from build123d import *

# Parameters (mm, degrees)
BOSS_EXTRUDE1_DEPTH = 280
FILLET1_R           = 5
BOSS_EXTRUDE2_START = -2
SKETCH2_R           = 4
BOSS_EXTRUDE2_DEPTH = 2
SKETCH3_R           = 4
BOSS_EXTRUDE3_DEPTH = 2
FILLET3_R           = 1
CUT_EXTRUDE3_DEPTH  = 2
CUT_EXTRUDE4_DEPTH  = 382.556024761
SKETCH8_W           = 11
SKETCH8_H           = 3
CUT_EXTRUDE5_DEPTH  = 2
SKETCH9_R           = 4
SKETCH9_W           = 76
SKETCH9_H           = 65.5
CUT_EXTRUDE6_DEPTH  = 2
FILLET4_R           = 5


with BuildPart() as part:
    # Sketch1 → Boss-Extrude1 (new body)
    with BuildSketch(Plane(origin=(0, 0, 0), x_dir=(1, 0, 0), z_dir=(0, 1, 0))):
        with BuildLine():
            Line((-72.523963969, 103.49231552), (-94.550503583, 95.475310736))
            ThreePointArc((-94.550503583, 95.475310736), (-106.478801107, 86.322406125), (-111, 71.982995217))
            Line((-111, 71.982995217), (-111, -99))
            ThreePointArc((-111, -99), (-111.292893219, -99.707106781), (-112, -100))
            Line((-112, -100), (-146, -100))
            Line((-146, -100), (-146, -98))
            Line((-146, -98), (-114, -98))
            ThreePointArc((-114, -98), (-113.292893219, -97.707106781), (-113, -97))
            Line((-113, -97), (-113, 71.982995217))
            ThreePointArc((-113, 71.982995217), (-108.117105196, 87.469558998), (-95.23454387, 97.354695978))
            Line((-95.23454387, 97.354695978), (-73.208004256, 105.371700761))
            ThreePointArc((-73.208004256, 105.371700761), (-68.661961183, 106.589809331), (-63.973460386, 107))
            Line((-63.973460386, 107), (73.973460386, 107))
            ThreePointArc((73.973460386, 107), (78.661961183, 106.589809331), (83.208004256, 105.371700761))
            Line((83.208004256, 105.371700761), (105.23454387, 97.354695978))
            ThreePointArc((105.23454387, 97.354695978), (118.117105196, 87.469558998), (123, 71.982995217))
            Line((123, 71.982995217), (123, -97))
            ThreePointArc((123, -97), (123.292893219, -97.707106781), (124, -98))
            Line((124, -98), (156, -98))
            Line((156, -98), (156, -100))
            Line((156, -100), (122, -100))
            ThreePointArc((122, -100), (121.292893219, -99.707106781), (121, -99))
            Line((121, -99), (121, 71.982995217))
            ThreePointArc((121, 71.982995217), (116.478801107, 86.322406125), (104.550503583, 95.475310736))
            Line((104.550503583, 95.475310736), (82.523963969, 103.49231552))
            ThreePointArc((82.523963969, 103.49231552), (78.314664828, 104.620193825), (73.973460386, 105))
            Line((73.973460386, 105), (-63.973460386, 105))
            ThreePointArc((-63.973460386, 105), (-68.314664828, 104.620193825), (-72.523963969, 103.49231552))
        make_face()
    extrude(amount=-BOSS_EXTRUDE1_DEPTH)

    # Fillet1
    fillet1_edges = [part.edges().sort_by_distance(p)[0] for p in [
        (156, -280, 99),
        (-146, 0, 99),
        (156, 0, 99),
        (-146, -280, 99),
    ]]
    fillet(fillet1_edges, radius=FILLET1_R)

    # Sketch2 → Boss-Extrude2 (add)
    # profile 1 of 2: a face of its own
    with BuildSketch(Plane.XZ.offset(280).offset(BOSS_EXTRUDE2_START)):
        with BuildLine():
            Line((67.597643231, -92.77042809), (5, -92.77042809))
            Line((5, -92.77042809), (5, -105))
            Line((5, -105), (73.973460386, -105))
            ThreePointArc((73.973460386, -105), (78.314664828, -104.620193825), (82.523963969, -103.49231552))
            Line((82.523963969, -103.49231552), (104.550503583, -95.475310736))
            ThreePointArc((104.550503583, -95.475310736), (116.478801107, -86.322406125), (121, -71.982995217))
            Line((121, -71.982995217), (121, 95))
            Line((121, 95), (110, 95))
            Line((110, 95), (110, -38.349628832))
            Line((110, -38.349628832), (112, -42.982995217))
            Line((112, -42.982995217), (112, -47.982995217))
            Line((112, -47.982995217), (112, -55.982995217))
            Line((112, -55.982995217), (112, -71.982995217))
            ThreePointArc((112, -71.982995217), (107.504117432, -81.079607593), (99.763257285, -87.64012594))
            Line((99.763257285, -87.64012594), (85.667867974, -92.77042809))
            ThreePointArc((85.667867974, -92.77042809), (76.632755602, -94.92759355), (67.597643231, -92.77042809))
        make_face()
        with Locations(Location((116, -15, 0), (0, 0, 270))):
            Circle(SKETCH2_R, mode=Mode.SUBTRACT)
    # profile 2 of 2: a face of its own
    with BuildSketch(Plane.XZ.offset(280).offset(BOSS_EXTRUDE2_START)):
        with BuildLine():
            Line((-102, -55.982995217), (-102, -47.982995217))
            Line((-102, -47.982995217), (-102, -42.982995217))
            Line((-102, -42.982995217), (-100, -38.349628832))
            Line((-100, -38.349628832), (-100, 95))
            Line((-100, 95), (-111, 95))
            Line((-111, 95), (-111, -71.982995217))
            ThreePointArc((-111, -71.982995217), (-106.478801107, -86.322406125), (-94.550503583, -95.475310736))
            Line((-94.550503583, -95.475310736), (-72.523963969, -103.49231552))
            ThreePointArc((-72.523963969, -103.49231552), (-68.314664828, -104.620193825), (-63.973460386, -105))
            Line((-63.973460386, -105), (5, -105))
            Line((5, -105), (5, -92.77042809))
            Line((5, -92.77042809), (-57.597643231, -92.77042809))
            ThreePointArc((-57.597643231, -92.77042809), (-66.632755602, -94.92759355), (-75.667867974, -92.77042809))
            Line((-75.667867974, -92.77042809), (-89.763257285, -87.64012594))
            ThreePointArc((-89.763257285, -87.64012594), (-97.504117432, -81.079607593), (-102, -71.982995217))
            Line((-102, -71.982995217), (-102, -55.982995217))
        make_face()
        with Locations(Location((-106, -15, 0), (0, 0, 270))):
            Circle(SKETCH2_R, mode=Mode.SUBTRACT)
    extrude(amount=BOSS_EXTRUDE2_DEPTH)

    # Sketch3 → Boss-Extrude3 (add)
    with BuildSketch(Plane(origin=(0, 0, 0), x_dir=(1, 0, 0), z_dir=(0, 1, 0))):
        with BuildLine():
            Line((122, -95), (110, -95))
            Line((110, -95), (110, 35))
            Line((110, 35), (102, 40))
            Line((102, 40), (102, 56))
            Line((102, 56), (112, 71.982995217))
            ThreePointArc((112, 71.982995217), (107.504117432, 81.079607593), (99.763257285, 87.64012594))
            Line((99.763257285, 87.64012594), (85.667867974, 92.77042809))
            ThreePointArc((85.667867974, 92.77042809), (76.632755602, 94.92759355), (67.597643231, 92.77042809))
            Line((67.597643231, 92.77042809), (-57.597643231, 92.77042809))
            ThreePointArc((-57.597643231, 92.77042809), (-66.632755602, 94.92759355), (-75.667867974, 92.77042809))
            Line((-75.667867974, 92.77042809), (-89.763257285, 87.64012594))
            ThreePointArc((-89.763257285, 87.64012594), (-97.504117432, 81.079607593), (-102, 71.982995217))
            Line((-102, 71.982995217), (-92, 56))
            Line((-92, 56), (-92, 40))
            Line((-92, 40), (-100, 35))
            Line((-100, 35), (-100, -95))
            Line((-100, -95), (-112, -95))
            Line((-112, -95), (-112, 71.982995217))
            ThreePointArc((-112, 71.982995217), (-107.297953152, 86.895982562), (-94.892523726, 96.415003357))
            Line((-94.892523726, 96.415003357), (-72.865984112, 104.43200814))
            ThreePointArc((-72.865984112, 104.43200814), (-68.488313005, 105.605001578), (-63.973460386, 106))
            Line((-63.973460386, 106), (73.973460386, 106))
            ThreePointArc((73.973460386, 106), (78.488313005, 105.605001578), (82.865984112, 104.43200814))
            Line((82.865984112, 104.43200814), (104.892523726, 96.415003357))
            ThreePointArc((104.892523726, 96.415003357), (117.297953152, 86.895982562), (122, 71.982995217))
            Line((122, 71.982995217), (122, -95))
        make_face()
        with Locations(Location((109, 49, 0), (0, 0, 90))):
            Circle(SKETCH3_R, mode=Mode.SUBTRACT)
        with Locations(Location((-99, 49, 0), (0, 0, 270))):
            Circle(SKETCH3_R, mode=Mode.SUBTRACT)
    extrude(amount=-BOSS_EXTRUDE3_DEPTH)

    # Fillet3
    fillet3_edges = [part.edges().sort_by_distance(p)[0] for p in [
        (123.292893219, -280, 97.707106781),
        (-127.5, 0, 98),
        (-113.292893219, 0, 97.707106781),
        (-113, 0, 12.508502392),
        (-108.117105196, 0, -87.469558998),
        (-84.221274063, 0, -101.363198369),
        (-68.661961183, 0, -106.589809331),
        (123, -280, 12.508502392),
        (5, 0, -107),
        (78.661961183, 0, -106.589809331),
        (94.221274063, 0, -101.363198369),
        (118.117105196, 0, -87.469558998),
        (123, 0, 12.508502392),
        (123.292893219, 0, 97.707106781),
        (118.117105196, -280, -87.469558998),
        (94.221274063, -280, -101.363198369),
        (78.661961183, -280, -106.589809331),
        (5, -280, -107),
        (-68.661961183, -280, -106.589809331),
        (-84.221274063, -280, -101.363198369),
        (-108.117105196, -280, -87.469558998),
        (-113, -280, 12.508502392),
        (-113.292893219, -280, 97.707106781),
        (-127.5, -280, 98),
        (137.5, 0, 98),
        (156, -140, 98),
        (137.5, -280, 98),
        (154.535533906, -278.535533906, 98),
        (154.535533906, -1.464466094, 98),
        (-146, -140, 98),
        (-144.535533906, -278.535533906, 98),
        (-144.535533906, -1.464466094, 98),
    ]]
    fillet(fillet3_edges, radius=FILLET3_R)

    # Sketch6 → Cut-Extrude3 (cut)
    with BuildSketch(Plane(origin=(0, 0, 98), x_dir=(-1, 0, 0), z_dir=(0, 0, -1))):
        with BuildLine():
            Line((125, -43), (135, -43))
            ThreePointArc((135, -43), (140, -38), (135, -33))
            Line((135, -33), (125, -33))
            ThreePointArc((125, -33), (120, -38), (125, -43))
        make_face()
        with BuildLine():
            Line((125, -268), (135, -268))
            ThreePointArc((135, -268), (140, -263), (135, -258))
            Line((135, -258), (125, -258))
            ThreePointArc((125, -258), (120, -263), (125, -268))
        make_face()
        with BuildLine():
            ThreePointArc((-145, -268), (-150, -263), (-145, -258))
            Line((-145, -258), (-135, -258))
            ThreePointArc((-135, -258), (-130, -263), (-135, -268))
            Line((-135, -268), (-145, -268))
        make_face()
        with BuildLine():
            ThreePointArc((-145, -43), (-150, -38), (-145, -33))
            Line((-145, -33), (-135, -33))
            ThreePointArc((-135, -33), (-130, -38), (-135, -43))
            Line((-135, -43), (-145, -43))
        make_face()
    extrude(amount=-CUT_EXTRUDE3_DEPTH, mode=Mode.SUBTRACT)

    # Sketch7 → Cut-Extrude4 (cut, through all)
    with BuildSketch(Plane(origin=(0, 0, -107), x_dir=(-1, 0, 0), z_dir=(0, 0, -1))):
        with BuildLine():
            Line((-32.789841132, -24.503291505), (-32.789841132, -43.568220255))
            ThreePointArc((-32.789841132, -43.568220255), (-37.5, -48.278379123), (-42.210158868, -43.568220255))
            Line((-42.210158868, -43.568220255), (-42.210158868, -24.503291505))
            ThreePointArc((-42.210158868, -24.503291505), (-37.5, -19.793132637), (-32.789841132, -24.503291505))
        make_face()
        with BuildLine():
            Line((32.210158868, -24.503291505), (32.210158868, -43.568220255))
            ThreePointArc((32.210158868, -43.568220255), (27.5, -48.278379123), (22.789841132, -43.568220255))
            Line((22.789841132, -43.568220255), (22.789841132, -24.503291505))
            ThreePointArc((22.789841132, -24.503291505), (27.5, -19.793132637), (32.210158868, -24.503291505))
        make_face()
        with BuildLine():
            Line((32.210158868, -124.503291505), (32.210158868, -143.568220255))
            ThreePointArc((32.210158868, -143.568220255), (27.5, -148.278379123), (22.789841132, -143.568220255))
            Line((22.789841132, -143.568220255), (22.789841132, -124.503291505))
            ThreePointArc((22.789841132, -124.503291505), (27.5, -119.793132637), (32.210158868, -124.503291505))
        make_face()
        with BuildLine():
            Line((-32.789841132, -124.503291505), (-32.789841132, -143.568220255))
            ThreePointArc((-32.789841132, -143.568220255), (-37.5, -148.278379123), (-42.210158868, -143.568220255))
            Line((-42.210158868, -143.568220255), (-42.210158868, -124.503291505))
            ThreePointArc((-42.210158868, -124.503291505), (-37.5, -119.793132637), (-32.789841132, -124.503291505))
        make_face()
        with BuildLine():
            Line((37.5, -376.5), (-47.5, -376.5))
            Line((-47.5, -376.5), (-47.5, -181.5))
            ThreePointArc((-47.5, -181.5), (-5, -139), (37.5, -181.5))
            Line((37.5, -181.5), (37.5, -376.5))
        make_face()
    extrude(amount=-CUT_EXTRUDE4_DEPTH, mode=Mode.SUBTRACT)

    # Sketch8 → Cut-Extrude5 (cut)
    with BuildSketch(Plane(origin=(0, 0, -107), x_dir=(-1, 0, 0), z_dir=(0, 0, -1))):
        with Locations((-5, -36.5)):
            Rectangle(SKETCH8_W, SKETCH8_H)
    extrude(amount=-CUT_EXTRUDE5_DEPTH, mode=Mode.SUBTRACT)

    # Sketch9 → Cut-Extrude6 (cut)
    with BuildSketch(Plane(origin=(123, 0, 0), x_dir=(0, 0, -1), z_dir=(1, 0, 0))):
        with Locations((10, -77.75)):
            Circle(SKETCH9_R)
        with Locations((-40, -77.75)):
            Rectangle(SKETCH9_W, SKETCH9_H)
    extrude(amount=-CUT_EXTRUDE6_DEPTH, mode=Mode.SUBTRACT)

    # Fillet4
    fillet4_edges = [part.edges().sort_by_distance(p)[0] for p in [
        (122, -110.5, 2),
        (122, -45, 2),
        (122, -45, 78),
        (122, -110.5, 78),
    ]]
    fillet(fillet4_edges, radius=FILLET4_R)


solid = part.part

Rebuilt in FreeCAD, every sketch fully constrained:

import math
import FreeCAD as App
import Part
import Sketcher
Q = App.Units.Quantity


def edges_at(feature, points):
    """Names of the edges that pass closest to the given points."""
    edges = feature.Shape.Edges
    near = lambda p: min(range(len(edges)), key=lambda i: edges[i].distToShape(Part.Vertex(*p))[0])
    return sorted({f"Edge{near(p) + 1}" for p in points})

doc = App.newDocument("Part")
body = doc.addObject("PartDesign::Body", "Body")

sketch1 = body.newObject("Sketcher::SketchObject", "Sketch")
sketch1.AttachmentSupport = (doc.getObject("XZ_Plane"), [""])
sketch1.MapMode = "FlatFace"
sketch1.addGeometry([
    Part.LineSegment(App.Vector(-94.550504, -95.475311, 0), App.Vector(-72.523964, -103.492316, 0)),
    Part.ArcOfCircle(Part.Circle(App.Vector(-63.97346, -80, 0), App.Vector(0, 0, 1), 25), math.radians(-110), math.radians(-90)),
    Part.LineSegment(App.Vector(-63.97346, -105, 0), App.Vector(73.97346, -105, 0)),
    Part.ArcOfCircle(Part.Circle(App.Vector(73.97346, -80, 0), App.Vector(0, 0, 1), 25), math.radians(-90), math.radians(-70)),
    Part.LineSegment(App.Vector(82.523964, -103.492316, 0), App.Vector(104.550504, -95.475311, 0)),
    Part.ArcOfCircle(Part.Circle(App.Vector(96, -71.982995, 0), App.Vector(0, 0, 1), 25), math.radians(-70), math.radians(0)),
    Part.LineSegment(App.Vector(121, -71.982995, 0), App.Vector(121, 99, 0)),
    Part.ArcOfCircle(Part.Circle(App.Vector(122, 99, 0), App.Vector(0, 0, 1), 1), math.radians(90), math.radians(180)),
    Part.LineSegment(App.Vector(122, 100, 0), App.Vector(156, 100, 0)),
    Part.LineSegment(App.Vector(156, 100, 0), App.Vector(156, 98, 0)),
    Part.LineSegment(App.Vector(156, 98, 0), App.Vector(124, 98, 0)),
    Part.ArcOfCircle(Part.Circle(App.Vector(124, 97, 0), App.Vector(0, 0, 1), 1), math.radians(90), math.radians(180)),
    Part.LineSegment(App.Vector(123, 97, 0), App.Vector(123, -71.982995, 0)),
    Part.ArcOfCircle(Part.Circle(App.Vector(96, -71.982995, 0), App.Vector(0, 0, 1), 27), math.radians(-70), math.radians(0)),
    Part.LineSegment(App.Vector(105.234544, -97.354696, 0), App.Vector(83.208004, -105.371701, 0)),
    Part.ArcOfCircle(Part.Circle(App.Vector(73.97346, -80, 0), App.Vector(0, 0, 1), 27), math.radians(-90), math.radians(-70)),
    Part.LineSegment(App.Vector(73.97346, -107, 0), App.Vector(-63.97346, -107, 0)),
    Part.ArcOfCircle(Part.Circle(App.Vector(-63.97346, -80, 0), App.Vector(0, 0, 1), 27), math.radians(-110), math.radians(-90)),
    Part.LineSegment(App.Vector(-73.208004, -105.371701, 0), App.Vector(-95.234544, -97.354696, 0)),
    Part.ArcOfCircle(Part.Circle(App.Vector(-86, -71.982995, 0), App.Vector(0, 0, 1), 27), math.radians(180), math.radians(250)),
    Part.LineSegment(App.Vector(-113, -71.982995, 0), App.Vector(-113, 97, 0)),
    Part.ArcOfCircle(Part.Circle(App.Vector(-114, 97, 0), App.Vector(0, 0, 1), 1), math.radians(0), math.radians(90)),
    Part.LineSegment(App.Vector(-114, 98, 0), App.Vector(-146, 98, 0)),
    Part.LineSegment(App.Vector(-146, 98, 0), App.Vector(-146, 100, 0)),
    Part.LineSegment(App.Vector(-146, 100, 0), App.Vector(-112, 100, 0)),
    Part.ArcOfCircle(Part.Circle(App.Vector(-112, 99, 0), App.Vector(0, 0, 1), 1), math.radians(0), math.radians(90)),
    Part.LineSegment(App.Vector(-111, 99, 0), App.Vector(-111, -71.982995, 0)),
    Part.ArcOfCircle(Part.Circle(App.Vector(-86, -71.982995, 0), App.Vector(0, 0, 1), 25), math.radians(-180), math.radians(-110)),
], False)
sketch1.addConstraint([
    Sketcher.Constraint("Tangent", 0, 2, 1, 1),
    Sketcher.Constraint("Tangent", 1, 2, 2, 1),
    Sketcher.Constraint("Tangent", 2, 2, 3, 1),
    Sketcher.Constraint("Tangent", 3, 2, 4, 1),
    Sketcher.Constraint("Tangent", 4, 2, 5, 1),
    Sketcher.Constraint("Tangent", 5, 2, 6, 1),
    Sketcher.Constraint("Tangent", 6, 2, 7, 2),
    Sketcher.Constraint("Tangent", 7, 1, 8, 1),
    Sketcher.Constraint("Coincident", 8, 2, 9, 1),
    Sketcher.Constraint("Coincident", 9, 2, 10, 1),
    Sketcher.Constraint("Tangent", 10, 2, 11, 1),
    Sketcher.Constraint("Tangent", 11, 2, 12, 1),
    Sketcher.Constraint("Tangent", 12, 2, 13, 2),
    Sketcher.Constraint("Tangent", 13, 1, 14, 1),
    Sketcher.Constraint("Tangent", 14, 2, 15, 2),
    Sketcher.Constraint("Tangent", 15, 1, 16, 1),
    Sketcher.Constraint("Tangent", 16, 2, 17, 2),
    Sketcher.Constraint("Tangent", 17, 1, 18, 1),
    Sketcher.Constraint("Tangent", 18, 2, 19, 2),
    Sketcher.Constraint("Tangent", 19, 1, 20, 1),
    Sketcher.Constraint("Tangent", 20, 2, 21, 1),
    Sketcher.Constraint("Tangent", 21, 2, 22, 1),
    Sketcher.Constraint("Coincident", 22, 2, 23, 1),
    Sketcher.Constraint("Coincident", 23, 2, 24, 1),
    Sketcher.Constraint("Tangent", 24, 2, 25, 2),
    Sketcher.Constraint("Tangent", 25, 1, 26, 1),
    Sketcher.Constraint("Tangent", 26, 2, 27, 1),
    Sketcher.Constraint("Tangent", 27, 2, 0, 1),
    Sketcher.Constraint("Horizontal", 2),
    Sketcher.Constraint("Vertical", 6),
    Sketcher.Constraint("Horizontal", 8),
    Sketcher.Constraint("Vertical", 9),
    Sketcher.Constraint("Horizontal", 10),
    Sketcher.Constraint("Vertical", 12),
    Sketcher.Constraint("Horizontal", 16),
    Sketcher.Constraint("Vertical", 20),
    Sketcher.Constraint("Horizontal", 22),
    Sketcher.Constraint("Vertical", 23),
    Sketcher.Constraint("Horizontal", 24),
    Sketcher.Constraint("Vertical", 26),
    Sketcher.Constraint("Coincident", 13, 3, 5, 3),
    Sketcher.Constraint("Coincident", 15, 3, 3, 3),
    Sketcher.Constraint("Coincident", 17, 3, 1, 3),
    Sketcher.Constraint("Coincident", 27, 3, 19, 3),
    Sketcher.Constraint("Equal", 1, 3),
    Sketcher.Constraint("Equal", 3, 5),
    Sketcher.Constraint("Equal", 7, 11),
    Sketcher.Constraint("Equal", 13, 15),
    Sketcher.Constraint("Equal", 17, 19),
    Sketcher.Constraint("Equal", 11, 21),
    Sketcher.Constraint("Equal", 21, 25),
    Sketcher.Constraint("Equal", 5, 27),
    Sketcher.Constraint("Horizontal", 13, 3, 19, 3),
    Sketcher.Constraint("Horizontal", 11, 3, 21, 3),
    Sketcher.Constraint("Horizontal", 7, 3, 25, 3),
    Sketcher.Constraint("Horizontal", 0, 2, 3, 2),
    Sketcher.Constraint("Equal", 10, 22),
    Sketcher.Constraint("Radius", 1, 25.0),
    Sketcher.Constraint("Radius", 7, 1.0),
    Sketcher.Constraint("Radius", 13, 27.0),
    Sketcher.Constraint("DistanceX", 8, 1, 8, 2, 34.0),
    Sketcher.Constraint("DistanceY", 9, 2, 9, 1, 2.0),
    Sketcher.Constraint("Angle", 0, Q("-20 deg")),
    Sketcher.Constraint("DistanceY", 1, 3, -1, 1, 80.0),
    Sketcher.Constraint("DistanceX", -1, 1, 5, 3, 96.0),
    Sketcher.Constraint("DistanceY", -1, 1, 7, 3, 99.0),
    Sketcher.Constraint("DistanceX", 19, 3, -1, 1, 86.0),
    Sketcher.Constraint("DistanceX", 2, 1, 2, 2, 137.946921),
])
pad1 = body.newObject("PartDesign::Pad", "Pad")
pad1.Profile = sketch1
pad1.Length = 280
doc.recompute()

fillet = body.newObject("PartDesign::Fillet", "Fillet")
fillet.Base = (pad1, edges_at(pad1, [
    (156, -280, 99),
    (-146, 0, 99),
    (156, 0, 99),
    (-146, -280, 99),
]))
fillet.Radius = 5

sketch2 = body.newObject("Sketcher::SketchObject", "Sketch001")
sketch2.AttachmentSupport = (doc.getObject("XZ_Plane"), [""])
sketch2.MapMode = "FlatFace"
sketch2.AttachmentOffset = App.Placement(App.Vector(0, 0, 278), App.Rotation())
sketch2.addGeometry([
    Part.LineSegment(App.Vector(67.597643, -92.770428, 0), App.Vector(-57.597643, -92.770428, 0)),
    Part.ArcOfCircle(Part.Circle(App.Vector(-66.632756, -74.927594, 0), App.Vector(0, 0, 1), 20), math.radians(-116.856379), math.radians(-63.143621)),
    Part.LineSegment(App.Vector(-75.667868, -92.770428, 0), App.Vector(-89.763257, -87.640126, 0)),
    Part.ArcOfCircle(Part.Circle(App.Vector(-77.806322, -65.684906, 0), App.Vector(0, 0, 1), 25), math.radians(-165.408631), math.radians(-118.572958)),
    Part.LineSegment(App.Vector(-102, -71.982995, 0), App.Vector(-102, -42.982995, 0)),
    Part.LineSegment(App.Vector(-102, -42.982995, 0), App.Vector(-100, -38.349629, 0)),
    Part.LineSegment(App.Vector(-100, -38.349629, 0), App.Vector(-100, 95, 0)),
    Part.LineSegment(App.Vector(-100, 95, 0), App.Vector(-111, 95, 0)),
    Part.LineSegment(App.Vector(-111, 95, 0), App.Vector(-111, -71.982995, 0)),
    Part.ArcOfCircle(Part.Circle(App.Vector(-86, -71.982995, 0), App.Vector(0, 0, 1), 25), math.radians(-180), math.radians(-110)),
    Part.LineSegment(App.Vector(-94.550504, -95.475311, 0), App.Vector(-72.523964, -103.492316, 0)),
    Part.ArcOfCircle(Part.Circle(App.Vector(-63.97346, -80, 0), App.Vector(0, 0, 1), 25), math.radians(-110), math.radians(-90)),
    Part.LineSegment(App.Vector(-63.97346, -105, 0), App.Vector(73.97346, -105, 0)),
    Part.ArcOfCircle(Part.Circle(App.Vector(73.97346, -80, 0), App.Vector(0, 0, 1), 25), math.radians(-90), math.radians(-70)),
    Part.LineSegment(App.Vector(82.523964, -103.492316, 0), App.Vector(104.550504, -95.475311, 0)),
    Part.ArcOfCircle(Part.Circle(App.Vector(96, -71.982995, 0), App.Vector(0, 0, 1), 25), math.radians(-70), math.radians(0)),
    Part.LineSegment(App.Vector(121, -71.982995, 0), App.Vector(121, 95, 0)),
    Part.LineSegment(App.Vector(121, 95, 0), App.Vector(110, 95, 0)),
    Part.LineSegment(App.Vector(110, 95, 0), App.Vector(110, -38.349629, 0)),
    Part.LineSegment(App.Vector(110, -38.349629, 0), App.Vector(112, -42.982995, 0)),
    Part.LineSegment(App.Vector(112, -42.982995, 0), App.Vector(112, -71.982995, 0)),
    Part.ArcOfCircle(Part.Circle(App.Vector(87.806322, -65.684906, 0), App.Vector(0, 0, 1), 25), math.radians(-61.427042), math.radians(-14.591369)),
    Part.LineSegment(App.Vector(99.763257, -87.640126, 0), App.Vector(85.667868, -92.770428, 0)),
    Part.ArcOfCircle(Part.Circle(App.Vector(76.632756, -74.927594, 0), App.Vector(0, 0, 1), 20), math.radians(-116.856379), math.radians(-63.143621)),
    Part.Circle(App.Vector(116, -15, 0), App.Vector(0, 0, 1), 4),
    Part.Circle(App.Vector(-106, -15, 0), App.Vector(0, 0, 1), 4),
], False)
sketch2.addConstraint([
    Sketcher.Constraint("Coincident", 0, 2, 1, 2),
    Sketcher.Constraint("Coincident", 1, 1, 2, 1),
    Sketcher.Constraint("Coincident", 2, 2, 3, 2),
    Sketcher.Constraint("Coincident", 3, 1, 4, 1),
    Sketcher.Constraint("Coincident", 4, 2, 5, 1),
    Sketcher.Constraint("Coincident", 5, 2, 6, 1),
    Sketcher.Constraint("Coincident", 6, 2, 7, 1),
    Sketcher.Constraint("Coincident", 7, 2, 8, 1),
    Sketcher.Constraint("Tangent", 8, 2, 9, 1),
    Sketcher.Constraint("Tangent", 9, 2, 10, 1),
    Sketcher.Constraint("Tangent", 10, 2, 11, 1),
    Sketcher.Constraint("Tangent", 11, 2, 12, 1),
    Sketcher.Constraint("Tangent", 12, 2, 13, 1),
    Sketcher.Constraint("Tangent", 13, 2, 14, 1),
    Sketcher.Constraint("Tangent", 14, 2, 15, 1),
    Sketcher.Constraint("Tangent", 15, 2, 16, 1),
    Sketcher.Constraint("Coincident", 16, 2, 17, 1),
    Sketcher.Constraint("Coincident", 17, 2, 18, 1),
    Sketcher.Constraint("Coincident", 18, 2, 19, 1),
    Sketcher.Constraint("Coincident", 19, 2, 20, 1),
    Sketcher.Constraint("Coincident", 20, 2, 21, 2),
    Sketcher.Constraint("Coincident", 21, 1, 22, 1),
    Sketcher.Constraint("Coincident", 22, 2, 23, 2),
    Sketcher.Constraint("Coincident", 23, 1, 0, 1),
    Sketcher.Constraint("Horizontal", 0),
    Sketcher.Constraint("Vertical", 4),
    Sketcher.Constraint("Vertical", 6),
    Sketcher.Constraint("Horizontal", 7),
    Sketcher.Constraint("Vertical", 8),
    Sketcher.Constraint("Horizontal", 12),
    Sketcher.Constraint("Vertical", 16),
    Sketcher.Constraint("Horizontal", 17),
    Sketcher.Constraint("Vertical", 18),
    Sketcher.Constraint("Vertical", 20),
    Sketcher.Constraint("Equal", 3, 9),
    Sketcher.Constraint("Equal", 9, 11),
    Sketcher.Constraint("Equal", 11, 13),
    Sketcher.Constraint("Equal", 13, 15),
    Sketcher.Constraint("Equal", 15, 21),
    Sketcher.Constraint("Equal", 1, 23),
    Sketcher.Constraint("Equal", 24, 25),
    Sketcher.Constraint("Parallel", 2, 10),
    Sketcher.Constraint("Parallel", 14, 22),
    Sketcher.Constraint("Horizontal", 9, 3, 15, 3),
    Sketcher.Constraint("Horizontal", 3, 3, 21, 3),
    Sketcher.Constraint("Horizontal", 1, 3, 23, 3),
    Sketcher.Constraint("Horizontal", 24, 3, 25, 3),
    Sketcher.Constraint("Horizontal", 0, 2, 1, 1),
    Sketcher.Constraint("Horizontal", 15, 3, 3, 1),
    Sketcher.Constraint("Horizontal", 10, 2, 13, 2),
    Sketcher.Constraint("Horizontal", 7, 2, 16, 2),
    Sketcher.Constraint("Horizontal", 5, 2, 18, 2),
    Sketcher.Constraint("Horizontal", 4, 2, 19, 2),
    Sketcher.Constraint("Horizontal", 15, 2, 20, 2),
    Sketcher.Constraint("Horizontal", 2, 2, 21, 1),
    Sketcher.Constraint("Horizontal", 1, 1, 22, 2),
    Sketcher.Constraint("Equal", 7, 17),
    Sketcher.Constraint("Equal", 5, 19),
    Sketcher.Constraint("Diameter", 24, 8.0),
    Sketcher.Constraint("Radius", 1, 20.0),
    Sketcher.Constraint("Radius", 3, 25.0),
    Sketcher.Constraint("DistanceX", 7, 2, 7, 1, 11.0),
    Sketcher.Constraint("DistanceY", 4, 1, 4, 2, 29.0),
    Sketcher.Constraint("Angle", 2, Q("160 deg")),
    Sketcher.Constraint("Distance", 2, 15.0),
    Sketcher.Constraint("DistanceX", 9, 3, -1, 1, 86.0),
    Sketcher.Constraint("DistanceY", 11, 3, -1, 1, 80.0),
    Sketcher.Constraint("DistanceX", -1, 1, 15, 3, 96.0),
    Sketcher.Constraint("DistanceX", -1, 1, 24, 3, 116.0),
    Sketcher.Constraint("DistanceY", 24, 3, -1, 1, 15.0),
    Sketcher.Constraint("DistanceX", 25, 3, -1, 1, 106.0),
    Sketcher.Constraint("DistanceX", 3, 1, -1, 1, 102.0),
    Sketcher.Constraint("DistanceY", -1, 1, 6, 2, 95.0),
    Sketcher.Constraint("DistanceX", 12, 1, 12, 2, 137.946921),
    Sketcher.Constraint("DistanceY", 6, 1, 6, 2, 133.349629),
    Sketcher.Constraint("DistanceY", 1, 3, 9, 3, 2.944598),
    Sketcher.Constraint("DistanceX", 2, 2, 1, 3, 23.130502),
    Sketcher.Constraint("DistanceX", 0, 2, 0, 1, 125.195286),
])
pad2 = body.newObject("PartDesign::Pad", "Pad001")
pad2.Profile = sketch2
pad2.Length = 2

sketch3 = body.newObject("Sketcher::SketchObject", "Sketch002")
sketch3.AttachmentSupport = (doc.getObject("XZ_Plane"), [""])
sketch3.MapMode = "FlatFace"
sketch3.addGeometry([
    Part.LineSegment(App.Vector(110, 95, 0), App.Vector(122, 95, 0)),
    Part.LineSegment(App.Vector(122, 95, 0), App.Vector(122, -71.982995, 0)),
    Part.ArcOfCircle(Part.Circle(App.Vector(96, -71.982995, 0), App.Vector(0, 0, 1), 26), math.radians(-70), math.radians(0)),
    Part.LineSegment(App.Vector(104.892524, -96.415003, 0), App.Vector(82.865984, -104.432008, 0)),
    Part.ArcOfCircle(Part.Circle(App.Vector(73.97346, -80, 0), App.Vector(0, 0, 1), 26), math.radians(-90), math.radians(-70)),
    Part.LineSegment(App.Vector(73.97346, -106, 0), App.Vector(-63.97346, -106, 0)),
    Part.ArcOfCircle(Part.Circle(App.Vector(-63.97346, -80, 0), App.Vector(0, 0, 1), 26), math.radians(-110), math.radians(-90)),
    Part.LineSegment(App.Vector(-72.865984, -104.432008, 0), App.Vector(-94.892524, -96.415003, 0)),
    Part.ArcOfCircle(Part.Circle(App.Vector(-86, -71.982995, 0), App.Vector(0, 0, 1), 26), math.radians(180), math.radians(250)),
    Part.LineSegment(App.Vector(-112, -71.982995, 0), App.Vector(-112, 95, 0)),
    Part.LineSegment(App.Vector(-112, 95, 0), App.Vector(-100, 95, 0)),
    Part.LineSegment(App.Vector(-100, 95, 0), App.Vector(-100, -35, 0)),
    Part.LineSegment(App.Vector(-100, -35, 0), App.Vector(-92, -40, 0)),
    Part.LineSegment(App.Vector(-92, -40, 0), App.Vector(-92, -56, 0)),
    Part.LineSegment(App.Vector(-92, -56, 0), App.Vector(-102, -71.982995, 0)),
    Part.ArcOfCircle(Part.Circle(App.Vector(-77.806322, -65.684906, 0), App.Vector(0, 0, 1), 25), math.radians(-165.408631), math.radians(-118.572958)),
    Part.LineSegment(App.Vector(-89.763257, -87.640126, 0), App.Vector(-75.667868, -92.770428, 0)),
    Part.ArcOfCircle(Part.Circle(App.Vector(-66.632756, -74.927594, 0), App.Vector(0, 0, 1), 20), math.radians(-116.856379), math.radians(-63.143621)),
    Part.LineSegment(App.Vector(-57.597643, -92.770428, 0), App.Vector(67.597643, -92.770428, 0)),
    Part.ArcOfCircle(Part.Circle(App.Vector(76.632756, -74.927594, 0), App.Vector(0, 0, 1), 20), math.radians(-116.856379), math.radians(-63.143621)),
    Part.LineSegment(App.Vector(85.667868, -92.770428, 0), App.Vector(99.763257, -87.640126, 0)),
    Part.ArcOfCircle(Part.Circle(App.Vector(87.806322, -65.684906, 0), App.Vector(0, 0, 1), 25), math.radians(-61.427042), math.radians(-14.591369)),
    Part.LineSegment(App.Vector(112, -71.982995, 0), App.Vector(102, -56, 0)),
    Part.LineSegment(App.Vector(102, -56, 0), App.Vector(102, -40, 0)),
    Part.LineSegment(App.Vector(102, -40, 0), App.Vector(110, -35, 0)),
    Part.LineSegment(App.Vector(110, -35, 0), App.Vector(110, 95, 0)),
    Part.Circle(App.Vector(109, -49, 0), App.Vector(0, 0, 1), 4),
    Part.Circle(App.Vector(-99, -49, 0), App.Vector(0, 0, 1), 4),
], False)
sketch3.addConstraint([
    Sketcher.Constraint("Coincident", 0, 2, 1, 1),
    Sketcher.Constraint("Tangent", 1, 2, 2, 2),
    Sketcher.Constraint("Tangent", 2, 1, 3, 1),
    Sketcher.Constraint("Tangent", 3, 2, 4, 2),
    Sketcher.Constraint("Tangent", 4, 1, 5, 1),
    Sketcher.Constraint("Tangent", 5, 2, 6, 2),
    Sketcher.Constraint("Tangent", 6, 1, 7, 1),
    Sketcher.Constraint("Tangent", 7, 2, 8, 2),
    Sketcher.Constraint("Tangent", 8, 1, 9, 1),
    Sketcher.Constraint("Coincident", 9, 2, 10, 1),
    Sketcher.Constraint("Coincident", 10, 2, 11, 1),
    Sketcher.Constraint("Coincident", 11, 2, 12, 1),
    Sketcher.Constraint("Coincident", 12, 2, 13, 1),
    Sketcher.Constraint("Coincident", 13, 2, 14, 1),
    Sketcher.Constraint("Coincident", 14, 2, 15, 1),
    Sketcher.Constraint("Coincident", 15, 2, 16, 1),
    Sketcher.Constraint("Coincident", 16, 2, 17, 1),
    Sketcher.Constraint("Coincident", 17, 2, 18, 1),
    Sketcher.Constraint("Coincident", 18, 2, 19, 1),
    Sketcher.Constraint("Coincident", 19, 2, 20, 1),
    Sketcher.Constraint("Coincident", 20, 2, 21, 1),
    Sketcher.Constraint("Coincident", 21, 2, 22, 1),
    Sketcher.Constraint("Coincident", 22, 2, 23, 1),
    Sketcher.Constraint("Coincident", 23, 2, 24, 1),
    Sketcher.Constraint("Coincident", 24, 2, 25, 1),
    Sketcher.Constraint("Coincident", 25, 2, 0, 1),
    Sketcher.Constraint("Horizontal", 0),
    Sketcher.Constraint("Vertical", 1),
    Sketcher.Constraint("Horizontal", 5),
    Sketcher.Constraint("Vertical", 9),
    Sketcher.Constraint("Horizontal", 10),
    Sketcher.Constraint("Vertical", 11),
    Sketcher.Constraint("Vertical", 13),
    Sketcher.Constraint("Horizontal", 18),
    Sketcher.Constraint("Vertical", 23),
    Sketcher.Constraint("Vertical", 25),
    Sketcher.Constraint("Equal", 2, 4),
    Sketcher.Constraint("Equal", 4, 6),
    Sketcher.Constraint("Equal", 6, 8),
    Sketcher.Constraint("Equal", 17, 19),
    Sketcher.Constraint("Equal", 15, 21),
    Sketcher.Constraint("Equal", 26, 27),
    Sketcher.Constraint("Symmetric", 8, 1, 21, 2, -2),
    Sketcher.Constraint("Parallel", 7, 16),
    Sketcher.Constraint("Parallel", 3, 20),
    Sketcher.Constraint("Horizontal", 2, 3, 8, 3),
    Sketcher.Constraint("Horizontal", 17, 3, 19, 3),
    Sketcher.Constraint("Horizontal", 15, 3, 21, 3),
    Sketcher.Constraint("Horizontal", 26, 3, 27, 3),
    Sketcher.Constraint("Horizontal", 3, 2, 6, 1),
    Sketcher.Constraint("Horizontal", 0, 2, 9, 2),
    Sketcher.Constraint("Horizontal", 8, 1, 14, 2),
    Sketcher.Constraint("Horizontal", 16, 2, 17, 2),
    Sketcher.Constraint("Horizontal", 18, 2, 19, 2),
    Sketcher.Constraint("Horizontal", 15, 2, 20, 2),
    Sketcher.Constraint("Horizontal", 13, 2, 22, 2),
    Sketcher.Constraint("Horizontal", 12, 2, 23, 2),
    Sketcher.Constraint("Horizontal", 11, 2, 24, 2),
    Sketcher.Constraint("Equal", 0, 10),
    Sketcher.Constraint("Equal", 14, 22),
    Sketcher.Constraint("Equal", 12, 24),
    Sketcher.Constraint("Diameter", 26, 8.0),
    Sketcher.Constraint("Radius", 2, 26.0),
    Sketcher.Constraint("Radius", 15, 25.0),
    Sketcher.Constraint("Radius", 17, 20.0),
    Sketcher.Constraint("DistanceX", 0, 1, 0, 2, 12.0),
    Sketcher.Constraint("DistanceY", 11, 2, 11, 1, 130.0),
    Sketcher.Constraint("DistanceY", 13, 2, 13, 1, 16.0),
    Sketcher.Constraint("Angle", 3, Q("-160 deg")),
    Sketcher.Constraint("Distance", 16, 15.0),
    Sketcher.Constraint("DistanceX", -1, 1, 2, 3, 96.0),
    Sketcher.Constraint("DistanceY", 4, 3, -1, 1, 80.0),
    Sketcher.Constraint("DistanceX", 8, 3, -1, 1, 86.0),
    Sketcher.Constraint("DistanceX", -1, 1, 26, 3, 109.0),
    Sketcher.Constraint("DistanceY", 26, 3, -1, 1, 49.0),
    Sketcher.Constraint("DistanceX", 27, 3, -1, 1, 99.0),
    Sketcher.Constraint("DistanceY", -1, 1, 0, 2, 95.0),
    Sketcher.Constraint("DistanceX", 12, 2, -1, 1, 92.0),
    Sketcher.Constraint("DistanceY", 12, 2, -1, 1, 40.0),
    Sketcher.Constraint("DistanceX", 5, 2, 5, 1, 137.946921),
    Sketcher.Constraint("DistanceY", 17, 3, 8, 3, 2.944598),
    Sketcher.Constraint("DistanceX", 18, 1, 18, 2, 125.195286),
    Sketcher.Constraint("DistanceX", 15, 3, -1, 1, 77.806322),
])
pad3 = body.newObject("PartDesign::Pad", "Pad002")
pad3.Profile = sketch3
pad3.Length = 2
doc.recompute()

fillet2 = body.newObject("PartDesign::Fillet", "Fillet001")
fillet2.Base = (pad3, edges_at(pad3, [
    (123.293, -280, 97.707),
    (-127.5, 0, 98),
    (-113.293, 0, 97.707),
    (-113, 0, 12.509),
    (-108.117, 0, -87.47),
    (-84.221, 0, -101.363),
    (-68.662, 0, -106.59),
    (123, -280, 12.509),
    (5, 0, -107),
    (78.662, 0, -106.59),
    (94.221, 0, -101.363),
    (118.117, 0, -87.47),
    (123, 0, 12.509),
    (123.293, 0, 97.707),
    (118.117, -280, -87.47),
    (94.221, -280, -101.363),
    (78.662, -280, -106.59),
    (5, -280, -107),
    (-68.662, -280, -106.59),
    (-84.221, -280, -101.363),
    (-108.117, -280, -87.47),
    (-113, -280, 12.509),
    (-113.293, -280, 97.707),
    (-127.5, -280, 98),
    (137.5, 0, 98),
    (156, -140, 98),
    (137.5, -280, 98),
    (154.536, -278.536, 98),
    (154.536, -1.464, 98),
    (-146, -140, 98),
    (-144.536, -278.536, 98),
    (-144.536, -1.464, 98),
]))
fillet2.Radius = 1

sketch4 = body.newObject("Sketcher::SketchObject", "Sketch003")
sketch4.AttachmentSupport = (doc.getObject("XY_Plane"), [""])
sketch4.MapMode = "FlatFace"
sketch4.AttachmentOffset = App.Placement(App.Vector(0, 0, 98), App.Rotation())
sketch4.addGeometry([
    Part.LineSegment(App.Vector(-125, -43, 0), App.Vector(-135, -43, 0)),
    Part.ArcOfCircle(Part.Circle(App.Vector(-135, -38, 0), App.Vector(0, 0, 1), 5), math.radians(90), math.radians(270)),
    Part.LineSegment(App.Vector(-135, -33, 0), App.Vector(-125, -33, 0)),
    Part.ArcOfCircle(Part.Circle(App.Vector(-125, -38, 0), App.Vector(0, 0, 1), 5), math.radians(-90), math.radians(90)),
    Part.LineSegment(App.Vector(-125, -268, 0), App.Vector(-135, -268, 0)),
    Part.ArcOfCircle(Part.Circle(App.Vector(-135, -263, 0), App.Vector(0, 0, 1), 5), math.radians(90), math.radians(270)),
    Part.LineSegment(App.Vector(-135, -258, 0), App.Vector(-125, -258, 0)),
    Part.ArcOfCircle(Part.Circle(App.Vector(-125, -263, 0), App.Vector(0, 0, 1), 5), math.radians(-90), math.radians(90)),
    Part.ArcOfCircle(Part.Circle(App.Vector(145, -263, 0), App.Vector(0, 0, 1), 5), math.radians(-90), math.radians(90)),
    Part.LineSegment(App.Vector(145, -268, 0), App.Vector(135, -268, 0)),
    Part.ArcOfCircle(Part.Circle(App.Vector(135, -263, 0), App.Vector(0, 0, 1), 5), math.radians(90), math.radians(270)),
    Part.LineSegment(App.Vector(135, -258, 0), App.Vector(145, -258, 0)),
    Part.ArcOfCircle(Part.Circle(App.Vector(145, -38, 0), App.Vector(0, 0, 1), 5), math.radians(-90), math.radians(90)),
    Part.LineSegment(App.Vector(145, -43, 0), App.Vector(135, -43, 0)),
    Part.ArcOfCircle(Part.Circle(App.Vector(135, -38, 0), App.Vector(0, 0, 1), 5), math.radians(90), math.radians(270)),
    Part.LineSegment(App.Vector(135, -33, 0), App.Vector(145, -33, 0)),
], False)
sketch4.addConstraint([
    Sketcher.Constraint("Tangent", 0, 2, 1, 2),
    Sketcher.Constraint("Tangent", 1, 1, 2, 1),
    Sketcher.Constraint("Tangent", 2, 2, 3, 2),
    Sketcher.Constraint("Tangent", 3, 1, 0, 1),
    Sketcher.Constraint("Tangent", 4, 2, 5, 2),
    Sketcher.Constraint("Tangent", 5, 1, 6, 1),
    Sketcher.Constraint("Tangent", 6, 2, 7, 2),
    Sketcher.Constraint("Tangent", 7, 1, 4, 1),
    Sketcher.Constraint("Tangent", 8, 1, 9, 1),
    Sketcher.Constraint("Tangent", 9, 2, 10, 2),
    Sketcher.Constraint("Tangent", 10, 1, 11, 1),
    Sketcher.Constraint("Tangent", 11, 2, 8, 2),
    Sketcher.Constraint("Tangent", 12, 1, 13, 1),
    Sketcher.Constraint("Tangent", 13, 2, 14, 2),
    Sketcher.Constraint("Tangent", 14, 1, 15, 1),
    Sketcher.Constraint("Tangent", 15, 2, 12, 2),
    Sketcher.Constraint("Horizontal", 0),
    Sketcher.Constraint("Horizontal", 2),
    Sketcher.Constraint("Horizontal", 4),
    Sketcher.Constraint("Horizontal", 6),
    Sketcher.Constraint("Horizontal", 9),
    Sketcher.Constraint("Horizontal", 11),
    Sketcher.Constraint("Horizontal", 13),
    Sketcher.Constraint("Horizontal", 15),
    Sketcher.Constraint("Equal", 3, 5),
    Sketcher.Constraint("Equal", 7, 8),
    Sketcher.Constraint("Equal", 10, 12),
    Sketcher.Constraint("Symmetric", 5, 3, 10, 3, -2),
    Sketcher.Constraint("Symmetric", 1, 3, 14, 3, -2),
    Sketcher.Constraint("Vertical", 1, 3, 5, 3),
    Sketcher.Constraint("Vertical", 3, 3, 7, 3),
    Sketcher.Constraint("Vertical", 8, 3, 12, 3),
    Sketcher.Constraint("Equal", 6, 9),
    Sketcher.Constraint("Radius", 1, 5.0),
    Sketcher.Constraint("DistanceX", 0, 2, 0, 1, 10.0),
    Sketcher.Constraint("DistanceX", 1, 3, -1, 1, 135.0),
    Sketcher.Constraint("DistanceY", 1, 3, -1, 1, 38.0),
    Sketcher.Constraint("DistanceY", 5, 3, -1, 1, 263.0),
])
pocket1 = body.newObject("PartDesign::Pocket", "Pocket")
pocket1.Profile = sketch4
pocket1.Length = 2
pocket1.Reversed = True

sketch5 = body.newObject("Sketcher::SketchObject", "Sketch004")
sketch5.AttachmentSupport = (doc.getObject("XY_Plane"), [""])
sketch5.MapMode = "FlatFace"
sketch5.AttachmentOffset = App.Placement(App.Vector(0, 0, -107), App.Rotation())
sketch5.addGeometry([
    Part.LineSegment(App.Vector(32.789841, -43.56822, 0), App.Vector(32.789841, -24.503292, 0)),
    Part.ArcOfCircle(Part.Circle(App.Vector(37.5, -24.503292, 0), App.Vector(0, 0, 1), 4.710159), math.radians(0), math.radians(180)),
    Part.LineSegment(App.Vector(42.210159, -24.503292, 0), App.Vector(42.210159, -43.56822, 0)),
    Part.ArcOfCircle(Part.Circle(App.Vector(37.5, -43.56822, 0), App.Vector(0, 0, 1), 4.710159), math.radians(180), math.radians(360)),
    Part.LineSegment(App.Vector(-32.210159, -43.56822, 0), App.Vector(-32.210159, -24.503292, 0)),
    Part.ArcOfCircle(Part.Circle(App.Vector(-27.5, -24.503292, 0), App.Vector(0, 0, 1), 4.710159), math.radians(0), math.radians(180)),
    Part.LineSegment(App.Vector(-22.789841, -24.503292, 0), App.Vector(-22.789841, -43.56822, 0)),
    Part.ArcOfCircle(Part.Circle(App.Vector(-27.5, -43.56822, 0), App.Vector(0, 0, 1), 4.710159), math.radians(180), math.radians(360)),
    Part.LineSegment(App.Vector(-32.210159, -143.56822, 0), App.Vector(-32.210159, -124.503292, 0)),
    Part.ArcOfCircle(Part.Circle(App.Vector(-27.5, -124.503292, 0), App.Vector(0, 0, 1), 4.710159), math.radians(0), math.radians(180)),
    Part.LineSegment(App.Vector(-22.789841, -124.503292, 0), App.Vector(-22.789841, -143.56822, 0)),
    Part.ArcOfCircle(Part.Circle(App.Vector(-27.5, -143.56822, 0), App.Vector(0, 0, 1), 4.710159), math.radians(180), math.radians(360)),
    Part.LineSegment(App.Vector(32.789841, -143.56822, 0), App.Vector(32.789841, -124.503292, 0)),
    Part.ArcOfCircle(Part.Circle(App.Vector(37.5, -124.503292, 0), App.Vector(0, 0, 1), 4.710159), math.radians(0), math.radians(180)),
    Part.LineSegment(App.Vector(42.210159, -124.503292, 0), App.Vector(42.210159, -143.56822, 0)),
    Part.ArcOfCircle(Part.Circle(App.Vector(37.5, -143.56822, 0), App.Vector(0, 0, 1), 4.710159), math.radians(180), math.radians(360)),
    Part.LineSegment(App.Vector(47.5, -376.5, 0), App.Vector(-37.5, -376.5, 0)),
    Part.LineSegment(App.Vector(-37.5, -376.5, 0), App.Vector(-37.5, -181.5, 0)),
    Part.ArcOfCircle(Part.Circle(App.Vector(5, -181.5, 0), App.Vector(0, 0, 1), 42.5), math.radians(0), math.radians(180)),
    Part.LineSegment(App.Vector(47.5, -181.5, 0), App.Vector(47.5, -376.5, 0)),
], False)
sketch5.addConstraint([
    Sketcher.Constraint("Tangent", 0, 2, 1, 2),
    Sketcher.Constraint("Tangent", 1, 1, 2, 1),
    Sketcher.Constraint("Tangent", 2, 2, 3, 2),
    Sketcher.Constraint("Tangent", 3, 1, 0, 1),
    Sketcher.Constraint("Tangent", 4, 2, 5, 2),
    Sketcher.Constraint("Tangent", 5, 1, 6, 1),
    Sketcher.Constraint("Tangent", 6, 2, 7, 2),
    Sketcher.Constraint("Tangent", 7, 1, 4, 1),
    Sketcher.Constraint("Tangent", 8, 2, 9, 2),
    Sketcher.Constraint("Tangent", 9, 1, 10, 1),
    Sketcher.Constraint("Tangent", 10, 2, 11, 2),
    Sketcher.Constraint("Tangent", 11, 1, 8, 1),
    Sketcher.Constraint("Tangent", 12, 2, 13, 2),
    Sketcher.Constraint("Tangent", 13, 1, 14, 1),
    Sketcher.Constraint("Tangent", 14, 2, 15, 2),
    Sketcher.Constraint("Tangent", 15, 1, 12, 1),
    Sketcher.Constraint("Coincident", 16, 2, 17, 1),
    Sketcher.Constraint("Tangent", 17, 2, 18, 2),
    Sketcher.Constraint("Tangent", 18, 1, 19, 1),
    Sketcher.Constraint("Coincident", 19, 2, 16, 1),
    Sketcher.Constraint("Vertical", 0),
    Sketcher.Constraint("Vertical", 2),
    Sketcher.Constraint("Vertical", 4),
    Sketcher.Constraint("Vertical", 6),
    Sketcher.Constraint("Vertical", 8),
    Sketcher.Constraint("Vertical", 10),
    Sketcher.Constraint("Vertical", 12),
    Sketcher.Constraint("Vertical", 14),
    Sketcher.Constraint("Horizontal", 16),
    Sketcher.Constraint("Vertical", 17),
    Sketcher.Constraint("Vertical", 19),
    Sketcher.Constraint("Equal", 3, 5),
    Sketcher.Constraint("Equal", 7, 9),
    Sketcher.Constraint("Equal", 11, 13),
    Sketcher.Constraint("Horizontal", 1, 3, 5, 3),
    Sketcher.Constraint("Horizontal", 3, 3, 7, 3),
    Sketcher.Constraint("Horizontal", 9, 3, 13, 3),
    Sketcher.Constraint("Horizontal", 11, 3, 15, 3),
    Sketcher.Constraint("Vertical", 7, 3, 9, 3),
    Sketcher.Constraint("Vertical", 3, 3, 13, 3),
    Sketcher.Constraint("Equal", 6, 8),
    Sketcher.Constraint("Radius", 18, 42.5),
    Sketcher.Constraint("DistanceY", 17, 1, 17, 2, 195.0),
    Sketcher.Constraint("DistanceX", -1, 1, 18, 3, 5.0),
    Sketcher.Constraint("DistanceX", 5, 3, 1, 3, 65.0),
    Sketcher.Constraint("DistanceY", 9, 3, 5, 3, 100.0),
    Sketcher.Constraint("DistanceX", 16, 2, 11, 3, 10.0),
    Sketcher.Constraint("DistanceY", 18, 3, -1, 1, 181.5),
    Sketcher.Constraint("Radius", 1, 4.710159),
    Sketcher.Constraint("DistanceY", 0, 1, 0, 2, 19.064929),
    Sketcher.Constraint("DistanceY", 1, 3, -1, 1, 24.503292),
])
pocket2 = body.newObject("PartDesign::Pocket", "Pocket001")
pocket2.Profile = sketch5
pocket2.Type = "ThroughAll"
pocket2.Reversed = True

sketch6 = body.newObject("Sketcher::SketchObject", "Sketch005")
sketch6.AttachmentSupport = (doc.getObject("XY_Plane"), [""])
sketch6.MapMode = "FlatFace"
sketch6.AttachmentOffset = App.Placement(App.Vector(0, 0, -107), App.Rotation())
sketch6.addGeometry([
    Part.LineSegment(App.Vector(10.5, -35, 0), App.Vector(10.5, -38, 0)),
    Part.LineSegment(App.Vector(10.5, -38, 0), App.Vector(-0.5, -38, 0)),
    Part.LineSegment(App.Vector(-0.5, -38, 0), App.Vector(-0.5, -35, 0)),
    Part.LineSegment(App.Vector(-0.5, -35, 0), App.Vector(10.5, -35, 0)),
], False)
sketch6.addConstraint([
    Sketcher.Constraint("Coincident", 0, 2, 1, 1),
    Sketcher.Constraint("Coincident", 1, 2, 2, 1),
    Sketcher.Constraint("Coincident", 2, 2, 3, 1),
    Sketcher.Constraint("Coincident", 3, 2, 0, 1),
    Sketcher.Constraint("Vertical", 0),
    Sketcher.Constraint("Horizontal", 1),
    Sketcher.Constraint("Vertical", 2),
    Sketcher.Constraint("Horizontal", 3),
    Sketcher.Constraint("DistanceX", 1, 2, 1, 1, 11.0),
    Sketcher.Constraint("DistanceY", 0, 2, 0, 1, 3.0),
    Sketcher.Constraint("DistanceY", 0, 2, -1, 1, 38.0),
    Sketcher.Constraint("DistanceX", -1, 1, 0, 2, 10.5),
])
pocket3 = body.newObject("PartDesign::Pocket", "Pocket002")
pocket3.Profile = sketch6
pocket3.Length = 2
pocket3.Reversed = True

sketch7 = body.newObject("Sketcher::SketchObject", "Sketch006")
sketch7.AttachmentSupport = (doc.getObject("YZ_Plane"), [""])
sketch7.MapMode = "FlatFace"
sketch7.AttachmentOffset = App.Placement(App.Vector(0, 0, 123), App.Rotation())
sketch7.addGeometry([
    Part.Circle(App.Vector(-77.75, -10, 0), App.Vector(0, 0, 1), 4),
    Part.LineSegment(App.Vector(-45, 78, 0), App.Vector(-110.5, 78, 0)),
    Part.LineSegment(App.Vector(-110.5, 78, 0), App.Vector(-110.5, 2, 0)),
    Part.LineSegment(App.Vector(-110.5, 2, 0), App.Vector(-45, 2, 0)),
    Part.LineSegment(App.Vector(-45, 2, 0), App.Vector(-45, 78, 0)),
], False)
sketch7.addConstraint([
    Sketcher.Constraint("Coincident", 1, 2, 2, 1),
    Sketcher.Constraint("Coincident", 2, 2, 3, 1),
    Sketcher.Constraint("Coincident", 3, 2, 4, 1),
    Sketcher.Constraint("Coincident", 4, 2, 1, 1),
    Sketcher.Constraint("Horizontal", 1),
    Sketcher.Constraint("Vertical", 2),
    Sketcher.Constraint("Horizontal", 3),
    Sketcher.Constraint("Vertical", 4),
    Sketcher.Constraint("Diameter", 0, 8.0),
    Sketcher.Constraint("DistanceY", 2, 2, 2, 1, 76.0),
    Sketcher.Constraint("DistanceX", 1, 2, 1, 1, 65.5),
    Sketcher.Constraint("DistanceY", 0, 3, -1, 1, 10.0),
    Sketcher.Constraint("DistanceY", -1, 1, 1, 2, 78.0),
    Sketcher.Constraint("DistanceX", 3, 2, -1, 1, 45.0),
    Sketcher.Constraint("DistanceX", 0, 3, -1, 1, 77.75),
])
pocket4 = body.newObject("PartDesign::Pocket", "Pocket003")
pocket4.Profile = sketch7
pocket4.Length = 2
doc.recompute()

fillet3 = body.newObject("PartDesign::Fillet", "Fillet002")
fillet3.Base = (pocket4, edges_at(pocket4, [
    (122, -110.5, 2),
    (122, -45, 2),
    (122, -45, 78),
    (122, -110.5, 78),
]))
fillet3.Radius = 5

doc.recompute()
